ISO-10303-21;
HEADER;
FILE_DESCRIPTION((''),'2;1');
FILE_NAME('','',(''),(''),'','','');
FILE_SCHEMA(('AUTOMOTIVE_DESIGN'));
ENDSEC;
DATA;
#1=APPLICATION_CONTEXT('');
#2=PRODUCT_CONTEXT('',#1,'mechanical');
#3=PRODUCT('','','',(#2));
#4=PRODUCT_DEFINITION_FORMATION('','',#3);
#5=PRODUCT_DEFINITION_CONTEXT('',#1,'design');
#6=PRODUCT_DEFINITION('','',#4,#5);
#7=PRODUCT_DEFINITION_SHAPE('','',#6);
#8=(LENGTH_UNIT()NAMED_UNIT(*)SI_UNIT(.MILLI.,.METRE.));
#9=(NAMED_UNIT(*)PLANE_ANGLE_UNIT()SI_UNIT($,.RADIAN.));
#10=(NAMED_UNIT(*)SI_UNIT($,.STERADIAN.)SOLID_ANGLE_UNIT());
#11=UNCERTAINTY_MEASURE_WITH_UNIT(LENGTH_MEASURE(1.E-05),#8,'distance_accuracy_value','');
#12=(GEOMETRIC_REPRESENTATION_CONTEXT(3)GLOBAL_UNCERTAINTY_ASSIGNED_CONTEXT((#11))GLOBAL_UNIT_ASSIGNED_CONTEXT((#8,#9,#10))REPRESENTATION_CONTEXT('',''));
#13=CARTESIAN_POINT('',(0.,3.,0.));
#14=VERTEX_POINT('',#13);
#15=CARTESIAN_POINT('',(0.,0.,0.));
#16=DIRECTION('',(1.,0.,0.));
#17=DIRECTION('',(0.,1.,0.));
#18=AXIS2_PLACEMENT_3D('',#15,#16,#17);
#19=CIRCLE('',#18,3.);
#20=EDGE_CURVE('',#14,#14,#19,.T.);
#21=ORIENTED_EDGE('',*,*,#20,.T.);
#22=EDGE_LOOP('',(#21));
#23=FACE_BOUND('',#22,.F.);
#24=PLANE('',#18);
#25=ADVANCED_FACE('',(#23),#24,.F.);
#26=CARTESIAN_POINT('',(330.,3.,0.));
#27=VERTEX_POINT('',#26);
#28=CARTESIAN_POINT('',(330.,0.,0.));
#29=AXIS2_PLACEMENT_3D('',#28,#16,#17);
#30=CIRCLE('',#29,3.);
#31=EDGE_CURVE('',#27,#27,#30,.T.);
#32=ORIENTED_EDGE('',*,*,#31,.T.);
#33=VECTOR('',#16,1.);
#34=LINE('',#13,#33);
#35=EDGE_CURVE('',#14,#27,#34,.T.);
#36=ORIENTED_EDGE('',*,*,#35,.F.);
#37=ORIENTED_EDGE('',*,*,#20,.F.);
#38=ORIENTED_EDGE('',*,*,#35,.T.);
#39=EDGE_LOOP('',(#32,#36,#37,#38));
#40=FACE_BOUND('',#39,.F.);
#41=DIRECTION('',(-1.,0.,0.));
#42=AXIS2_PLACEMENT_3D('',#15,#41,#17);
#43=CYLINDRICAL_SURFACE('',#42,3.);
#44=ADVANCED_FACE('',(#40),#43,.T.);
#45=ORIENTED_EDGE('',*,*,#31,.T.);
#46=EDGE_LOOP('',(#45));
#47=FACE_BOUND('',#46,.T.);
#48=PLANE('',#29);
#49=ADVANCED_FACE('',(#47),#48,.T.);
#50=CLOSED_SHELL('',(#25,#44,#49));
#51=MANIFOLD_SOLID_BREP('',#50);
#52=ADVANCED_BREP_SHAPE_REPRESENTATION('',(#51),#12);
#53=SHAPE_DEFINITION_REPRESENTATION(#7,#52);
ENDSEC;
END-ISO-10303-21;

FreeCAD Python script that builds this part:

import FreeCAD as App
import Part
import Sketcher
from FreeCAD import Vector
Q = App.Units.Quantity

doc = App.newDocument("Part")
body = doc.addObject("PartDesign::Body", "Body")

sketch1 = doc.addObject("Sketcher::SketchObject", "Sketch")
body.addObject(sketch1)
sketch1.AttachmentSupport = (doc.YZ_Plane, [""])
sketch1.MapMode = "FlatFace"
sketch1.addGeometry(Part.Circle(Vector(0, 0, 0), Vector(0, 0, 1), 3), False)
sketch1.addConstraint([
    Sketcher.Constraint("Coincident", 0, 3, -1, 1),
    Sketcher.Constraint("Diameter", 0, Q("6 mm")),
])
pad1 = doc.addObject("PartDesign::Pad", "Pad")
body.addObject(pad1)
pad1.Profile = sketch1
pad1.Length = 330

doc.recompute()
